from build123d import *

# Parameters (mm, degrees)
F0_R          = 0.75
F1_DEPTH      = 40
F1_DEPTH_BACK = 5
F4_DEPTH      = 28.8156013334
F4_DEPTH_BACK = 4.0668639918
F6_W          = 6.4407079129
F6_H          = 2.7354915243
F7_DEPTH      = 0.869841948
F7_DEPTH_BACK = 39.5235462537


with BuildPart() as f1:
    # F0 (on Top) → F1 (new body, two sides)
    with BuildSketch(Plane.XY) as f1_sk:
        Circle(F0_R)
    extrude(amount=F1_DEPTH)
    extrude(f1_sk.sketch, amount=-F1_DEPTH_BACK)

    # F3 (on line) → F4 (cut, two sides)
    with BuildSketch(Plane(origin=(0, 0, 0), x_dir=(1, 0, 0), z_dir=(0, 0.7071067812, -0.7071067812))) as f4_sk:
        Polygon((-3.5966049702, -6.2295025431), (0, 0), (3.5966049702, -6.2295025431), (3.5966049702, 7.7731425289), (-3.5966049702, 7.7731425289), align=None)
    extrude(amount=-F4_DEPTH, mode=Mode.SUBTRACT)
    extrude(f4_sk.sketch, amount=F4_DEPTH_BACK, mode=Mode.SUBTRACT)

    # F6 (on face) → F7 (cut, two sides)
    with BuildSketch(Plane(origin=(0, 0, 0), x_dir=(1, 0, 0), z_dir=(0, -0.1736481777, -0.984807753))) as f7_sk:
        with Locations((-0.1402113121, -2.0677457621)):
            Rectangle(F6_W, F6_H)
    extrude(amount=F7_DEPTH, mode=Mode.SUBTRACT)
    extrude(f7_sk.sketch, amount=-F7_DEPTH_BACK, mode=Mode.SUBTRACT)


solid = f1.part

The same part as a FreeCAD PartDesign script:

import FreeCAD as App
import Part
import Sketcher
from FreeCAD import Vector
Q = App.Units.Quantity

doc = App.newDocument("Part")
params = doc.addObject("Spreadsheet::Sheet", "Params")
for row, (alias, value) in enumerate([
    ("sketch1_diameter", "1.5 mm"),
    ("pad1_length", "40 mm"),
    ("pad1_length2", "5 mm"),
], start=1):
    params.set(f"A{row}", alias)
    params.set(f"B{row}", "=" + value)
    params.setAlias(f"B{row}", alias)

body = doc.addObject("PartDesign::Body", "Body")

sketch1 = body.newObject("Sketcher::SketchObject", "Sketch")
sketch1.AttachmentSupport = (doc.getObject("XY_Plane"), [""])
sketch1.MapMode = "FlatFace"
sketch1.addGeometry(Part.Circle(Vector(0, 0, 0), Vector(0, 0, 1), 0.75), False)
sketch1.addConstraint([
    Sketcher.Constraint("Coincident", 0, 3, -1, 1),
    Sketcher.Constraint("Diameter", 0, 1.5),
])
sketch1.setExpression("Constraints[1]", "Params.sketch1_diameter")
pad1 = body.newObject("PartDesign::Pad", "Pad")
pad1.Profile = sketch1
pad1.Type = "TwoLengths"
pad1.setExpression("Length", "Params.pad1_length")
pad1.setExpression("Length2", "Params.pad1_length2")

sketch2 = body.newObject("Sketcher::SketchObject", "Sketch001")
sketch2.Placement = App.Placement(Vector(0, 0, 0), App.Rotation(Vector(1, 0, 0), Vector(0, -0.707106781, -0.707106781), Vector(0, 0.707106781, -0.707106781), "ZXY"))
sketch2.addGeometry([
    Part.LineSegment(Vector(-3.596605, -6.229503, 0), Vector(0, 0, 0)),
    Part.LineSegment(Vector(0, 0, 0), Vector(3.596605, -6.229503, 0)),
    Part.LineSegment(Vector(3.596605, -6.229503, 0), Vector(3.596605, 7.773143, 0)),
    Part.LineSegment(Vector(3.596605, 7.773143, 0), Vector(-3.596605, 7.773143, 0)),
    Part.LineSegment(Vector(-3.596605, 7.773143, 0), Vector(-3.596605, -6.229503, 0)),
], False)
sketch2.addConstraint([
    Sketcher.Constraint("Coincident", 0, 2, 1, 1),
    Sketcher.Constraint("Coincident", 1, 2, 2, 1),
    Sketcher.Constraint("Coincident", 2, 2, 3, 1),
    Sketcher.Constraint("Coincident", 3, 2, 4, 1),
    Sketcher.Constraint("Coincident", 4, 2, 0, 1),
    Sketcher.Constraint("Vertical", 2),
    Sketcher.Constraint("Horizontal", 3),
    Sketcher.Constraint("Vertical", 4),
    Sketcher.Constraint("Coincident", 0, 2, -1, 1),
    Sketcher.Constraint("Symmetric", 1, 2, 4, 2, -2),
    Sketcher.Constraint("Angle", 0, Q("60 deg")),
    Sketcher.Constraint("DistanceX", 3, 2, 3, 1, 7.19321),
    Sketcher.Constraint("DistanceY", 2, 1, 2, 2, 14.002645),
])
pocket1 = body.newObject("PartDesign::Pocket", "Pocket")
pocket1.Profile = sketch2
pocket1.Type = "ThroughAll"
pocket1.Midplane = True

sketch3 = body.newObject("Sketcher::SketchObject", "Sketch002")
sketch3.Placement = App.Placement(Vector(0, 0, 0), App.Rotation(Vector(1, 0, 0), Vector(0, -0.984807753, 0.173648178), Vector(0, -0.173648178, -0.984807753), "ZXY"))
sketch3.addGeometry([
    Part.LineSegment(Vector(-3.360565, -0.7, 0), Vector(-3.360565, -3.435492, 0)),
    Part.LineSegment(Vector(-3.360565, -3.435492, 0), Vector(3.080143, -3.435492, 0)),
    Part.LineSegment(Vector(3.080143, -3.435492, 0), Vector(3.080143, -0.7, 0)),
    Part.LineSegment(Vector(3.080143, -0.7, 0), Vector(-3.360565, -0.7, 0)),
], False)
sketch3.addConstraint([
    Sketcher.Constraint("Coincident", 0, 2, 1, 1),
    Sketcher.Constraint("Coincident", 1, 2, 2, 1),
    Sketcher.Constraint("Coincident", 2, 2, 3, 1),
    Sketcher.Constraint("Coincident", 3, 2, 0, 1),
    Sketcher.Constraint("Vertical", 0),
    Sketcher.Constraint("Horizontal", 1),
    Sketcher.Constraint("Vertical", 2),
    Sketcher.Constraint("Horizontal", 3),
    Sketcher.Constraint("DistanceY", 2, 2, -1, 1, 0.7),
    Sketcher.Constraint("DistanceY", 0, 2, 0, 1, 2.735492),
    Sketcher.Constraint("DistanceX", 1, 1, 1, 2, 6.440708),
    Sketcher.Constraint("DistanceX", 0, 2, -1, 1, 3.360565),
])
pocket2 = body.newObject("PartDesign::Pocket", "Pocket001")
pocket2.Profile = sketch3
pocket2.Type = "ThroughAll"
pocket2.Midplane = True

doc.recompute()
